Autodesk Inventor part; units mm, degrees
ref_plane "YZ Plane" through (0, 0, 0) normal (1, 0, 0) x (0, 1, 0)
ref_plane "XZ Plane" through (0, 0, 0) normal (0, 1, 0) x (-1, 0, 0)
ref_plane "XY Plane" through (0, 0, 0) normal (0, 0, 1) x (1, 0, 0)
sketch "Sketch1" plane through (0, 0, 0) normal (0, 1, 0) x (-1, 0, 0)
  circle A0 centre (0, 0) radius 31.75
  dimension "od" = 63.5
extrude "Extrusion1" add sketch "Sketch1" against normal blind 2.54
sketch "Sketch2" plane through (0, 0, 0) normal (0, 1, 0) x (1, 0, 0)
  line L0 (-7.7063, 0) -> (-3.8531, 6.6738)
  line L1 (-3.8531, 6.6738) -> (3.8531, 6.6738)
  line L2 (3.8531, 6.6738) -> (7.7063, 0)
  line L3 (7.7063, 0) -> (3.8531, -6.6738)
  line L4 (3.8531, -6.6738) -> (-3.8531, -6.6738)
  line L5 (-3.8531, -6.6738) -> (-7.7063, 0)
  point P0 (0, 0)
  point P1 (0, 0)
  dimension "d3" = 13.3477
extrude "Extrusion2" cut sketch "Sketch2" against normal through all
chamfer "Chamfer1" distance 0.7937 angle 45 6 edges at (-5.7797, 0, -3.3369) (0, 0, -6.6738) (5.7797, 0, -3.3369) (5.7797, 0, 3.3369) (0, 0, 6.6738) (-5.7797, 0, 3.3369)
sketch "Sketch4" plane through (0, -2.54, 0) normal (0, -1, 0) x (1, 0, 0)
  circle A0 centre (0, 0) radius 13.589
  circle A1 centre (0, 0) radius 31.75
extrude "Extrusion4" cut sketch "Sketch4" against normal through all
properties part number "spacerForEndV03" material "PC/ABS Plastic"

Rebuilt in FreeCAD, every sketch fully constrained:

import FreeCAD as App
import Part
import Sketcher

V = App.Vector
Q = App.Units.Quantity


def edges_at(feature, points):
    """Names of the edges that pass closest to the given points."""
    edges = feature.Shape.Edges
    near = lambda p: min(range(len(edges)), key=lambda i: edges[i].distToShape(Part.Vertex(*p))[0])
    return sorted({f"Edge{near(p) + 1}" for p in points})

doc = App.newDocument("Part")
body = doc.addObject("PartDesign::Body", "Body")

# Sketch on XZ plane
sketch1 = doc.addObject("Sketcher::SketchObject", "Sketch")
body.addObject(sketch1)
sketch1.AttachmentSupport = (doc.XZ_Plane, [""])
sketch1.MapMode = "FlatFace"
sketch1.addGeometry(Part.Circle(V(0, 0, 0), V(0, 0, 1), 32), False)
sketch1.addConstraint(Sketcher.Constraint("Coincident", 0, 3, -1, 1))
sketch1.addConstraint(Sketcher.Constraint("Diameter", 0, Q("2.5 in")))
pad1 = doc.addObject("PartDesign::Pad", "Pad")
body.addObject(pad1)
pad1.Profile = sketch1
pad1.Length = Q("0.1 in")

# Sketch on XZ plane
sketch2 = doc.addObject("Sketcher::SketchObject", "Sketch001")
body.addObject(sketch2)
sketch2.AttachmentSupport = (doc.XZ_Plane, [""])
sketch2.MapMode = "FlatFace"
sketch2.addGeometry(Part.LineSegment(V(-4, -7, 0), V(-8, 0, 0)), False)
sketch2.addGeometry(Part.LineSegment(V(-8, 0, 0), V(-4, 7, 0)), False)
sketch2.addGeometry(Part.LineSegment(V(-4, 7, 0), V(4, 7, 0)), False)
sketch2.addGeometry(Part.LineSegment(V(4, 7, 0), V(8, 0, 0)), False)
sketch2.addGeometry(Part.LineSegment(V(8, 0, 0), V(4, -7, 0)), False)
sketch2.addGeometry(Part.LineSegment(V(4, -7, 0), V(-4, -7, 0)), False)
sketch2.addConstraint(Sketcher.Constraint("Coincident", 0, 2, 1, 1))
sketch2.addConstraint(Sketcher.Constraint("Coincident", 1, 2, 2, 1))
sketch2.addConstraint(Sketcher.Constraint("Coincident", 2, 2, 3, 1))
sketch2.addConstraint(Sketcher.Constraint("Coincident", 3, 2, 4, 1))
sketch2.addConstraint(Sketcher.Constraint("Coincident", 4, 2, 5, 1))
sketch2.addConstraint(Sketcher.Constraint("Coincident", 5, 2, 0, 1))
sketch2.addConstraint(Sketcher.Constraint("Horizontal", 2))
sketch2.addConstraint(Sketcher.Constraint("Horizontal", 5))
sketch2.addConstraint(Sketcher.Constraint("Symmetric", 0, 2, 3, 2, -1, 1))
sketch2.addConstraint(Sketcher.Constraint("Symmetric", 1, 2, 4, 2, -1, 1))
sketch2.addConstraint(Sketcher.Constraint("PointOnObject", 0, 2, -1))
sketch2.addConstraint(Sketcher.Constraint("Parallel", 0, 3))
sketch2.addConstraint(Sketcher.Constraint("Vertical", 2, 2, 4, 2))
sketch2.addConstraint(Sketcher.Constraint("Angle", 0, Q("120.0005 deg")))
sketch2.addConstraint(Sketcher.Constraint("DistanceY", 4, 2, 2, 2, Q("0.5255 in")))
sketch2.addConstraint(Sketcher.Constraint("DistanceX", 2, 1, 2, 2, Q("0.3034 in")))
pocket1 = doc.addObject("PartDesign::Pocket", "Pocket")
body.addObject(pocket1)
pocket1.Profile = sketch2
pocket1.Type = "ThroughAll"
pocket1.Reversed = True
doc.recompute()

chamfer = doc.addObject("PartDesign::Chamfer", "Chamfer")
body.addObject(chamfer)
chamfer.Base = (pocket1, edges_at(pocket1, [
    (-5.78, 0, -3.337),
    (0, 0, -6.674),
    (5.78, 0, -3.337),
    (5.78, 0, 3.337),
    (0, 0, 6.674),
    (-5.78, 0, 3.337),
]))
chamfer.Size = Q("0.031248 in")

# Sketch on XZ plane
sketch3 = doc.addObject("Sketcher::SketchObject", "Sketch002")
body.addObject(sketch3)
sketch3.AttachmentSupport = (doc.XZ_Plane, [""])
sketch3.MapMode = "FlatFace"
sketch3.AttachmentOffset = App.Placement(V(0, 0, 0.1 * 25.4), App.Rotation())
sketch3.addGeometry(Part.Circle(V(0, 0, 0), V(0, 0, 1), 32), False)
sketch3.addGeometry(Part.Circle(V(0, 0, 0), V(0, 0, 1), 14), False)
sketch3.addConstraint(Sketcher.Constraint("Coincident", 0, 3, -1, 1))
sketch3.addConstraint(Sketcher.Constraint("Coincident", 1, 3, -1, 1))
sketch3.addConstraint(Sketcher.Constraint("Diameter", 0, Q("2.5 in")))
sketch3.addConstraint(Sketcher.Constraint("Diameter", 1, Q("1.07 in")))
pocket2 = doc.addObject("PartDesign::Pocket", "Pocket001")
body.addObject(pocket2)
pocket2.Profile = sketch3
pocket2.Type = "ThroughAll"

doc.recompute()
